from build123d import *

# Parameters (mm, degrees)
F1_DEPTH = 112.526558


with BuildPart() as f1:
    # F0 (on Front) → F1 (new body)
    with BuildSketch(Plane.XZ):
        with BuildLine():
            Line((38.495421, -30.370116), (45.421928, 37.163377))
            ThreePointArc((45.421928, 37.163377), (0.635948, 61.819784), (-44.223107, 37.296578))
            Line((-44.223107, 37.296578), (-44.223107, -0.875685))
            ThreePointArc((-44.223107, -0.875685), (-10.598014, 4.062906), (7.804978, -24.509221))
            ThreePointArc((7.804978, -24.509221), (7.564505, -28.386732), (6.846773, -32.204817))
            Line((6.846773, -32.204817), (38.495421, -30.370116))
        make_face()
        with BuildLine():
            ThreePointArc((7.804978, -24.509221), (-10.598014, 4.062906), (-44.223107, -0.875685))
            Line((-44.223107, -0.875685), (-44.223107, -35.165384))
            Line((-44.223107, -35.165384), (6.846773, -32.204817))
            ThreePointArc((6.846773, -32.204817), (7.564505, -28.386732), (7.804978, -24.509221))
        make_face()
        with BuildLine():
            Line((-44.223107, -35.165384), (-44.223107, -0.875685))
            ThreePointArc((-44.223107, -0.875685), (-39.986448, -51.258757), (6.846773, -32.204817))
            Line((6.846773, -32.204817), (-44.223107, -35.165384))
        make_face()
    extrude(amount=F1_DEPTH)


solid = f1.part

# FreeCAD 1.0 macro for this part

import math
import FreeCAD as App
import Part
import Sketcher

V = App.Vector

doc = App.newDocument("Part")
body = doc.addObject("PartDesign::Body", "Body")

# Sketch on XZ plane
sketch1 = doc.addObject("Sketcher::SketchObject", "Sketch")
body.addObject(sketch1)
sketch1.AttachmentSupport = (doc.XZ_Plane, [""])
sketch1.MapMode = "FlatFace"
sketch1.addGeometry([
    Part.LineSegment(V(38, -30, 0), V(45, 37, 0)),  # 0
    Part.ArcOfCircle(Part.Circle(V(1, 9, 0), V(0, 0, 1), 53), math.radians(32), math.radians(147)),  # 1
    Part.LineSegment(V(-44, 37, 0), V(-44, -1, 0)),  # 2
    Part.ArcOfCircle(Part.Circle(V(-24, -25, 0), V(0, 0, 1), 31), math.radians(131), math.radians(346)),  # 3
    Part.LineSegment(V(7, -32, 0), V(38, -30, 0)),  # 4
], False)
sketch1.addConstraint([
    Sketcher.Constraint("Coincident", 0, 2, 1, 1),
    Sketcher.Constraint("Coincident", 1, 2, 2, 1),
    Sketcher.Constraint("Coincident", 2, 2, 3, 1),
    Sketcher.Constraint("Coincident", 3, 2, 4, 1),
    Sketcher.Constraint("Coincident", 4, 2, 0, 1),
    Sketcher.Constraint("Vertical", 2),
    Sketcher.Constraint("Radius", 3, 31.381759),
    Sketcher.Constraint("Radius", 1, 53.146403),
    Sketcher.Constraint("DistanceY", 3, 3, 0, 2, 61.672598),
    Sketcher.Constraint("DistanceY", 3, 3, 1, 2, 61.805799),
    Sketcher.Constraint("DistanceY", 3, 2, 4, 2, 1.834701),
    Sketcher.Constraint("DistanceX", 3, 3, 4, 2, 62.072202),
    Sketcher.Constraint("Distance", 0, 67.887769),
    Sketcher.Constraint("DistanceY", 2, 2, 2, 1, 38.172263),
    Sketcher.Constraint("DistanceX", -1, 1, 1, 3, 0.556979),
    Sketcher.Constraint("DistanceY", -1, 1, 1, 3, 8.673439),
    Sketcher.Constraint("DistanceX", 3, 3, -1, 1, 23.576781),
])
pad1 = doc.addObject("PartDesign::Pad", "Pad")
body.addObject(pad1)
pad1.Profile = sketch1
pad1.Length = 112.526558

doc.recompute()
